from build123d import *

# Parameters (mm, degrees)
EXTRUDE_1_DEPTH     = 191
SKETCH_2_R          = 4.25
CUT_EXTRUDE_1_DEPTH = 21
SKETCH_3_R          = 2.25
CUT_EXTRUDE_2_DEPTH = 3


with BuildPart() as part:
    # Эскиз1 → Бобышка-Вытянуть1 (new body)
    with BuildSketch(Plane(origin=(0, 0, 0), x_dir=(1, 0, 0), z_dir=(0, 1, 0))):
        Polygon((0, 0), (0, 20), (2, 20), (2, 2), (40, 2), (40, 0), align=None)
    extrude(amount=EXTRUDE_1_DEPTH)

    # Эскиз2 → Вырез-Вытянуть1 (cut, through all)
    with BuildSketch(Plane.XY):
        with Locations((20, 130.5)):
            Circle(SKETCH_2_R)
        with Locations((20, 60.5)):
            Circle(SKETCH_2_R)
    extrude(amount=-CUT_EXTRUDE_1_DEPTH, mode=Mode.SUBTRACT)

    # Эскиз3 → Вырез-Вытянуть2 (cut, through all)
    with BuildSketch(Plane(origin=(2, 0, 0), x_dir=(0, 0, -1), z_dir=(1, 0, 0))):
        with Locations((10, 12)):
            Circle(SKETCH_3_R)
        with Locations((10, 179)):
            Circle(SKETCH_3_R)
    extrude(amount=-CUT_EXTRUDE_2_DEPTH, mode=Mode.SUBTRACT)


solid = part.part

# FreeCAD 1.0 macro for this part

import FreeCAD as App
import Part
import Sketcher
Q = App.Units.Quantity

doc = App.newDocument("Part")
body = doc.addObject("PartDesign::Body", "Body")

# Sketch on XZ plane
sketch1 = body.newObject("Sketcher::SketchObject", "Sketch")
sketch1.AttachmentSupport = (doc.getObject("XZ_Plane"), [""])
sketch1.MapMode = "FlatFace"
sketch1.addGeometry([
    Part.LineSegment(App.Vector(0, -20, 0), App.Vector(0, 0, 0)),  # 0
    Part.LineSegment(App.Vector(0, 0, 0), App.Vector(40, 0, 0)),  # 1
    Part.LineSegment(App.Vector(40, 0, 0), App.Vector(40, -2, 0)),  # 2
    Part.LineSegment(App.Vector(40, -2, 0), App.Vector(2, -2, 0)),  # 3
    Part.LineSegment(App.Vector(2, -2, 0), App.Vector(2, -20, 0)),  # 4
    Part.LineSegment(App.Vector(2, -20, 0), App.Vector(0, -20, 0)),  # 5
], False)
sketch1.addConstraint([
    Sketcher.Constraint("Coincident", 0, 2, 1, 1),
    Sketcher.Constraint("Coincident", 1, 2, 2, 1),
    Sketcher.Constraint("Coincident", 2, 2, 3, 1),
    Sketcher.Constraint("Coincident", 3, 2, 4, 1),
    Sketcher.Constraint("Coincident", 4, 2, 5, 1),
    Sketcher.Constraint("Coincident", 5, 2, 0, 1),
    Sketcher.Constraint("Vertical", 0),
    Sketcher.Constraint("Horizontal", 1),
    Sketcher.Constraint("Vertical", 2),
    Sketcher.Constraint("Horizontal", 3),
    Sketcher.Constraint("Vertical", 4),
    Sketcher.Constraint("Horizontal", 5),
    Sketcher.Constraint("Coincident", 0, 2, -1, 1),
    Sketcher.Constraint("Equal", 5, 2),
    Sketcher.Constraint("DistanceX", 1, 1, 1, 2, Q("40 mm")),
    Sketcher.Constraint("DistanceX", 3, 2, 3, 1, Q("38 mm")),
    Sketcher.Constraint("DistanceY", 0, 1, 0, 2, Q("20 mm")),
])
pad1 = body.newObject("PartDesign::Pad", "Pad")
pad1.Profile = sketch1
pad1.Length = 191
pad1.Reversed = True

# Sketch on XY plane
sketch2 = body.newObject("Sketcher::SketchObject", "Sketch001")
sketch2.AttachmentSupport = (doc.getObject("XY_Plane"), [""])
sketch2.MapMode = "FlatFace"
sketch2.addGeometry([
    Part.Circle(App.Vector(20, 130.5, 0), App.Vector(0, 0, 1), 4.2),
    Part.Circle(App.Vector(20, 60.5, 0), App.Vector(0, 0, 1), 4.2),
], False)
sketch2.addConstraint([
    Sketcher.Constraint("Equal", 0, 1),
    Sketcher.Constraint("Vertical", 0, 3, 1, 3),
    Sketcher.Constraint("Diameter", 0, Q("8.5 mm")),
    Sketcher.Constraint("DistanceX", -1, 1, 0, 3, Q("20 mm")),
    Sketcher.Constraint("DistanceY", 1, 3, 0, 3, Q("70 mm")),
    Sketcher.Constraint("DistanceY", -1, 1, 0, 3, Q("130.5 mm")),
])
pocket1 = body.newObject("PartDesign::Pocket", "Pocket")
pocket1.Profile = sketch2
pocket1.Type = "ThroughAll"

# Sketch on YZ plane
sketch3 = body.newObject("Sketcher::SketchObject", "Sketch002")
sketch3.AttachmentSupport = (doc.getObject("YZ_Plane"), [""])
sketch3.MapMode = "FlatFace"
sketch3.AttachmentOffset = App.Placement(App.Vector(0, 0, 2), App.Rotation())
sketch3.addGeometry([
    Part.Circle(App.Vector(12, -10, 0), App.Vector(0, 0, 1), 2.2),
    Part.Circle(App.Vector(179, -10, 0), App.Vector(0, 0, 1), 2.2),
], False)
sketch3.addConstraint([
    Sketcher.Constraint("Equal", 0, 1),
    Sketcher.Constraint("Horizontal", 0, 3, 1, 3),
    Sketcher.Constraint("Diameter", 0, Q("4.5 mm")),
    Sketcher.Constraint("DistanceX", -1, 1, 0, 3, Q("12 mm")),
    Sketcher.Constraint("DistanceY", 0, 3, -1, 1, Q("10 mm")),
    Sketcher.Constraint("DistanceX", -1, 1, 1, 3, Q("179 mm")),
])
pocket2 = body.newObject("PartDesign::Pocket", "Pocket001")
pocket2.Profile = sketch3
pocket2.Type = "ThroughAll"

doc.recompute()
